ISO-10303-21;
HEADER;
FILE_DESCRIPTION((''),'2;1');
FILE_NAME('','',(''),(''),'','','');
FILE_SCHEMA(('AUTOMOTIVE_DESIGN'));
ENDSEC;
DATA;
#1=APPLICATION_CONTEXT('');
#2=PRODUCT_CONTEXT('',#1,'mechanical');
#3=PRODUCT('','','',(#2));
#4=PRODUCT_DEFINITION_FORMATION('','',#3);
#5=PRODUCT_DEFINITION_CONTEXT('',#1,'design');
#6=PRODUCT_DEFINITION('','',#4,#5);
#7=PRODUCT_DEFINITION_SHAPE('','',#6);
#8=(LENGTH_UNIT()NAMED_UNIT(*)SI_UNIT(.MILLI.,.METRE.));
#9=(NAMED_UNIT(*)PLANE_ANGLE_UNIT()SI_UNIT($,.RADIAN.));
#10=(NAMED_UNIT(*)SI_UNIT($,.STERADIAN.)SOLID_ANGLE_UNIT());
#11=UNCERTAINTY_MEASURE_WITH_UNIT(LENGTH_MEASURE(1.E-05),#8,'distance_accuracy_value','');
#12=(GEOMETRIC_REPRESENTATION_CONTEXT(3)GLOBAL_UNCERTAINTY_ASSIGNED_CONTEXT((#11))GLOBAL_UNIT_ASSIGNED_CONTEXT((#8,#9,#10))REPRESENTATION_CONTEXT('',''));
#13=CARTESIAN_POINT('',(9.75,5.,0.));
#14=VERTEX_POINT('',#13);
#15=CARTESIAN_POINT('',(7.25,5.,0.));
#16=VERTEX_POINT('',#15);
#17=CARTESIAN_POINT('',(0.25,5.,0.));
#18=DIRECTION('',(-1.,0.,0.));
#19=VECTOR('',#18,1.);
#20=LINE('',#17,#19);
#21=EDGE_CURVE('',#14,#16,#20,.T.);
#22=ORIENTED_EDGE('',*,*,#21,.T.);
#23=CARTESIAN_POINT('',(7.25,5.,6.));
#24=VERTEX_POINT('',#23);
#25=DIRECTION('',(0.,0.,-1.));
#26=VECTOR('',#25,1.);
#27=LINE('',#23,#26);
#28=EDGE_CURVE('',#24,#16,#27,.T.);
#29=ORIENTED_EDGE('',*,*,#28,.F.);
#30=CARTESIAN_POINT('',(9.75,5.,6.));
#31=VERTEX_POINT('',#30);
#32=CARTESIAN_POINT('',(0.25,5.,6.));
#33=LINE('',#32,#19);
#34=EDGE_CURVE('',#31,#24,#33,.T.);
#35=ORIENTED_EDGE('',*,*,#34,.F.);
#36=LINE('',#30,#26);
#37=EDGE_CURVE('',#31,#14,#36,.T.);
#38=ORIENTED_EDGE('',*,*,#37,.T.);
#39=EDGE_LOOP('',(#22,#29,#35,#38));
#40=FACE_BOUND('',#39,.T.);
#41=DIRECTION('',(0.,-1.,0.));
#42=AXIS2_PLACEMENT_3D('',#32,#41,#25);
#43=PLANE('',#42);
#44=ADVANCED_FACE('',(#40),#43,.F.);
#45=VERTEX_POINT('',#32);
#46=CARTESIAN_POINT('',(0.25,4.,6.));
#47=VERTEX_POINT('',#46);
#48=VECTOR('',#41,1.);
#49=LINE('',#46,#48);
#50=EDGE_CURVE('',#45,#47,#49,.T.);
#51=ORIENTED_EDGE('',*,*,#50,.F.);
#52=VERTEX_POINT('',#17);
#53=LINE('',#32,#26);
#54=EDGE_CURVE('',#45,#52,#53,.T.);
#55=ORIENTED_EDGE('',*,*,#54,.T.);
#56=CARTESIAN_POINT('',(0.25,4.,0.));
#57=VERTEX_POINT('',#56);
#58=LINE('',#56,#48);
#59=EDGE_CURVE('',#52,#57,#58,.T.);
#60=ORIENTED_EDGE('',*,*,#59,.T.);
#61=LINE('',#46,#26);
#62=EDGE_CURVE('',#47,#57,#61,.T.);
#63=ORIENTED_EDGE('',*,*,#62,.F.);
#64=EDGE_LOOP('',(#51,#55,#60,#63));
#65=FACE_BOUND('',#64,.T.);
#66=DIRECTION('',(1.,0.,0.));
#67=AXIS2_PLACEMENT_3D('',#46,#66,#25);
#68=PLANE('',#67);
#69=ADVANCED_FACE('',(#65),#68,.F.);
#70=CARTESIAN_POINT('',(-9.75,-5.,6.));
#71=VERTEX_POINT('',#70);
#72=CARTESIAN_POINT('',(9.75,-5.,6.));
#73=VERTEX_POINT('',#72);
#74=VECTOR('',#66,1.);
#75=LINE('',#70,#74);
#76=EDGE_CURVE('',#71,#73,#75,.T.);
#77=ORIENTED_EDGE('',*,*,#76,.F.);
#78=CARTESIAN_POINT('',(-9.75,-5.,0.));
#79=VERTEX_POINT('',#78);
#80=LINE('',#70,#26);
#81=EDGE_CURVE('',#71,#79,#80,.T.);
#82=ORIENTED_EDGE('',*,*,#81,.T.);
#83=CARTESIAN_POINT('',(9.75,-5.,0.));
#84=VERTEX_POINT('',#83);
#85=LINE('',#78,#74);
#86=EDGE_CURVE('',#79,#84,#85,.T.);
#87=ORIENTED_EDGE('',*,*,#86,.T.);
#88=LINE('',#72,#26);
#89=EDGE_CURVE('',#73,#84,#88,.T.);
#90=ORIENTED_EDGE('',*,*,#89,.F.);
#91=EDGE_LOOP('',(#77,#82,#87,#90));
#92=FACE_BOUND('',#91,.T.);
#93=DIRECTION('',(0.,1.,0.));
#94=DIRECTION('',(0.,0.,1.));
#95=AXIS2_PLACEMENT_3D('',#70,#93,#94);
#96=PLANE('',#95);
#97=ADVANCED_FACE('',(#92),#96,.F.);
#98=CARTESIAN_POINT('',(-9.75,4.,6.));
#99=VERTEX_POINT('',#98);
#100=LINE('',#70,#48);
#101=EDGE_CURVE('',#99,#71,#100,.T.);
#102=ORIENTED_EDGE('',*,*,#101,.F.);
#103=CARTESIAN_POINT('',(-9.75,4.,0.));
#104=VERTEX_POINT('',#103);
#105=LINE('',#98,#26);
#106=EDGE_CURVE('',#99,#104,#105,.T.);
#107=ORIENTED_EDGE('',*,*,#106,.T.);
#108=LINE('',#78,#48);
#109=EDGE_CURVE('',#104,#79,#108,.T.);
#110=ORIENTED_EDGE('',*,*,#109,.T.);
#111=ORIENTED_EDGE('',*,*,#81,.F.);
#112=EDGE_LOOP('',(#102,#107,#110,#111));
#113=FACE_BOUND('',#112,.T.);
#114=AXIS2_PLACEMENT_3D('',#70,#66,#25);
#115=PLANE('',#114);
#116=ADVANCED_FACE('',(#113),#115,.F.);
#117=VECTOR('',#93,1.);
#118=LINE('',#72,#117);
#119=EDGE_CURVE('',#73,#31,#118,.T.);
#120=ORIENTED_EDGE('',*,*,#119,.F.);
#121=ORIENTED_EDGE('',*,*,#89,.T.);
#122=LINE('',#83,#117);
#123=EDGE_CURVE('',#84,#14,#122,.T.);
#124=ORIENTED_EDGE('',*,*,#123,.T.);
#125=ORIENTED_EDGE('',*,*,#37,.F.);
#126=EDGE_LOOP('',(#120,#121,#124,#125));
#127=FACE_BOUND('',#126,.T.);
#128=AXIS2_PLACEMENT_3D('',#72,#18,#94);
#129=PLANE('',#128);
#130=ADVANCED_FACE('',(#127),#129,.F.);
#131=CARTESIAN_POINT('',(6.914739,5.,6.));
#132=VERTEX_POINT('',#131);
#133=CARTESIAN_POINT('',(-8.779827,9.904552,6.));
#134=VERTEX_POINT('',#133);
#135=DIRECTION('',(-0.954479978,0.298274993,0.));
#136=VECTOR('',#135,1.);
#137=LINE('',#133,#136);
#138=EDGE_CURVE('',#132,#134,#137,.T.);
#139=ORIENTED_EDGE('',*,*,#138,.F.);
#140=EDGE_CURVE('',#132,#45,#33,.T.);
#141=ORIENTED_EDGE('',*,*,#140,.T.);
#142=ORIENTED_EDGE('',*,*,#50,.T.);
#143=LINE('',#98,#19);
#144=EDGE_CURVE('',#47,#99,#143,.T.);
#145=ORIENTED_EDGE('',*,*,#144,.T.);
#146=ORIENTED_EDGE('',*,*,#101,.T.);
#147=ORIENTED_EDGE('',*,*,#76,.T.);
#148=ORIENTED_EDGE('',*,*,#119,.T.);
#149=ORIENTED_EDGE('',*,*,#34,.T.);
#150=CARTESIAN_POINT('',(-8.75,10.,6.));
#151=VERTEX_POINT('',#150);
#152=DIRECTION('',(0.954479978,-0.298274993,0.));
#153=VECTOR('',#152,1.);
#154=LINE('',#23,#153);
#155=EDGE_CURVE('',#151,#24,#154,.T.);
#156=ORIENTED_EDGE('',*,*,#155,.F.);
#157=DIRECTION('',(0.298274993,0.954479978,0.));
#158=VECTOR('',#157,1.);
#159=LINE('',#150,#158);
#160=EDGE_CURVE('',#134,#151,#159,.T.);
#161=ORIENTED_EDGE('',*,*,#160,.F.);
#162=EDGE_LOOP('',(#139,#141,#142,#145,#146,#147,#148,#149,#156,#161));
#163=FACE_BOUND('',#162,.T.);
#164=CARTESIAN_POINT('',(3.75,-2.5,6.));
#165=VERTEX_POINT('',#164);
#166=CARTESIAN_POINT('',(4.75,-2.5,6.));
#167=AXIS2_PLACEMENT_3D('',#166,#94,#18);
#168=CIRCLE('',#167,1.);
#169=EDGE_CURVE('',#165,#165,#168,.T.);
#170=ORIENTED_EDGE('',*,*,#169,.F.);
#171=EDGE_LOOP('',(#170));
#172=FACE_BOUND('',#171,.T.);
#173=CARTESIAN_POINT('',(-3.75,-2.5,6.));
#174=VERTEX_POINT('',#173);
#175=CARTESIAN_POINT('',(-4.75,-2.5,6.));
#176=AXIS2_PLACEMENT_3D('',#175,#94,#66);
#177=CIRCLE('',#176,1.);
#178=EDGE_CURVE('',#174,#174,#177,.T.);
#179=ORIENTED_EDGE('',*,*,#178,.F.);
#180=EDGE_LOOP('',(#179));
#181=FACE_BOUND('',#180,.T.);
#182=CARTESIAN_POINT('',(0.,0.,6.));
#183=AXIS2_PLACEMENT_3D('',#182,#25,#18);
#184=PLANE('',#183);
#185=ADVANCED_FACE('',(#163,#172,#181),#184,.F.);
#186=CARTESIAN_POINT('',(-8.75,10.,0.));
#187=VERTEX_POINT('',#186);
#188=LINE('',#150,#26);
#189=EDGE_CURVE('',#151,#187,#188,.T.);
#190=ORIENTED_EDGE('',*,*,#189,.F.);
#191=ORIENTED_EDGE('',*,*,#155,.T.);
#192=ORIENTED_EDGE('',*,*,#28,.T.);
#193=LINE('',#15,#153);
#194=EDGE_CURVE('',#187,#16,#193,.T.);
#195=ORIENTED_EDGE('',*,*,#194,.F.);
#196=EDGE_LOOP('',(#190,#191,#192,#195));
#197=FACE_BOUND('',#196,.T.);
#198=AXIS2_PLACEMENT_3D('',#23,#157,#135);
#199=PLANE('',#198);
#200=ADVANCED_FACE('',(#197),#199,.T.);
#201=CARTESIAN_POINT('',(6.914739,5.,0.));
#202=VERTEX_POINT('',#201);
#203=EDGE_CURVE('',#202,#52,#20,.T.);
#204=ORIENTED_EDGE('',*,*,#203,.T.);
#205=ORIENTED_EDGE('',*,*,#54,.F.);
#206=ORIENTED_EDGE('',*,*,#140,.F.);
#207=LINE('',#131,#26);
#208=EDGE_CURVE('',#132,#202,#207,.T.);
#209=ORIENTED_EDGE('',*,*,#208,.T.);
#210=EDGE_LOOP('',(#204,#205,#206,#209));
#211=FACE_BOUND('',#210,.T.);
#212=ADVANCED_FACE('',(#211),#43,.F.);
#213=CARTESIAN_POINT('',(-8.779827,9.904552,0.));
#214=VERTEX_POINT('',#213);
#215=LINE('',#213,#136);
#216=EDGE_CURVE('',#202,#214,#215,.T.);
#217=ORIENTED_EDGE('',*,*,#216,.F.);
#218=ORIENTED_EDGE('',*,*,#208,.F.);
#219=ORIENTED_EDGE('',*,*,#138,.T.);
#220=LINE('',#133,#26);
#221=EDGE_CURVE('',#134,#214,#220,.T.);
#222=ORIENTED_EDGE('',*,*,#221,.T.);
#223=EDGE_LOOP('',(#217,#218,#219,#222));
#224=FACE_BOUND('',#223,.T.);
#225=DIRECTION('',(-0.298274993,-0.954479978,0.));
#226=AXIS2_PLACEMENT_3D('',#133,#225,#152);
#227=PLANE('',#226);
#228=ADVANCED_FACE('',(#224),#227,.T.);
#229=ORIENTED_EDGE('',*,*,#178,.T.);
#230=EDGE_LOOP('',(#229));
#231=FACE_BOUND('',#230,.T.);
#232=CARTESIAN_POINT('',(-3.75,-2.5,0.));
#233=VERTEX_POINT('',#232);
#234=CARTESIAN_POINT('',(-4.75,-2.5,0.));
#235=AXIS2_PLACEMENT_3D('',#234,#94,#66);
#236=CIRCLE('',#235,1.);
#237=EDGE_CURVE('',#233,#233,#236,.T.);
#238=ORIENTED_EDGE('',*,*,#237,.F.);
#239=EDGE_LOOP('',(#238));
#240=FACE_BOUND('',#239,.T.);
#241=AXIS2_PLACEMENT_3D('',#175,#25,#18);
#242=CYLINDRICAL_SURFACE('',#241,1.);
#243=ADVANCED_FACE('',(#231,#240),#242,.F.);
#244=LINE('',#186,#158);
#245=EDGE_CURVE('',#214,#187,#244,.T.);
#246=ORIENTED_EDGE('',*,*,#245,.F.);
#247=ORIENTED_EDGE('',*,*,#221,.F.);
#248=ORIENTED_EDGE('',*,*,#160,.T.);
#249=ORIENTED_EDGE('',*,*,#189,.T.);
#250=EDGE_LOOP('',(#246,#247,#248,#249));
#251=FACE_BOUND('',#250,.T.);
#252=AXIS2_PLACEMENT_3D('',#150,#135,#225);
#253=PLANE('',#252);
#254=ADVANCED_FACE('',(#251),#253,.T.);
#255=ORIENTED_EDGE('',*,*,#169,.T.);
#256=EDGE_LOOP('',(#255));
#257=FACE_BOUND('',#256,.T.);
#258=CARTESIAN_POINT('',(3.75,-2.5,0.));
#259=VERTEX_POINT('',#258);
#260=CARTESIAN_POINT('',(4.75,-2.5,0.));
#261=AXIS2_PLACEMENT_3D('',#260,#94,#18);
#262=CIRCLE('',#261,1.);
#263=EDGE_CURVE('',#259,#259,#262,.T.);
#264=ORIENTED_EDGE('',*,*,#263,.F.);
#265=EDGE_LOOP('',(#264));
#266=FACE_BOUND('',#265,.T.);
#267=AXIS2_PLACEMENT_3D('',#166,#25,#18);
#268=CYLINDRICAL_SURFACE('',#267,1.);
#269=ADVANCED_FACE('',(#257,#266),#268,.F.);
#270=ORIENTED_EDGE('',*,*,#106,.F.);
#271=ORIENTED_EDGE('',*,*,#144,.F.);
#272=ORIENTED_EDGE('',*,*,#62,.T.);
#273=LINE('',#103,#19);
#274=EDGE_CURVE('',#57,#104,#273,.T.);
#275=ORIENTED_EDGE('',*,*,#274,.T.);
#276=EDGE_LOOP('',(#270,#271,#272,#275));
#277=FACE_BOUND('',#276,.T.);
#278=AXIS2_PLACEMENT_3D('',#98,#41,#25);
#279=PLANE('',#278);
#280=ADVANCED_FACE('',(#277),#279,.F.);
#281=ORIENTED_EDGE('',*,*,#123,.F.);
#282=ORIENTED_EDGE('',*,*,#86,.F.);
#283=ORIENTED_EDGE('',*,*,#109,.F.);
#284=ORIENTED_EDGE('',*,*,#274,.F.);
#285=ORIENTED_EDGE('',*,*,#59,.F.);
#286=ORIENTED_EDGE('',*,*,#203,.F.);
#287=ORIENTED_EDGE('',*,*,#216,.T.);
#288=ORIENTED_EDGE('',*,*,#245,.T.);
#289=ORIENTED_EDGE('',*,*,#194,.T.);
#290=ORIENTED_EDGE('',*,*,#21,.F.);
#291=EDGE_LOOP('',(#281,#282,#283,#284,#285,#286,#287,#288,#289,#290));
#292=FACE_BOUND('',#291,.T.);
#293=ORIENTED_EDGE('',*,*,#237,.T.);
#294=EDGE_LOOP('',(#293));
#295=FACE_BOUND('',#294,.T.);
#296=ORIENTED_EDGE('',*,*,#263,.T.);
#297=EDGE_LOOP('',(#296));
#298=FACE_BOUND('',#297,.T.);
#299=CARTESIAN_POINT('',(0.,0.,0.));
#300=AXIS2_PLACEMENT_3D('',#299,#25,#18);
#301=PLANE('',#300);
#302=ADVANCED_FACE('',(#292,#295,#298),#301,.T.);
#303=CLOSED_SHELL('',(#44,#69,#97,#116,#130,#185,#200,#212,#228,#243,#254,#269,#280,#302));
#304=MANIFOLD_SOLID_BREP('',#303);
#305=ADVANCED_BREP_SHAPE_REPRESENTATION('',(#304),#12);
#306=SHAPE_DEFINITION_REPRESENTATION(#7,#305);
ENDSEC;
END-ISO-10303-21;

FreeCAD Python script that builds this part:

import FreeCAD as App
import Part
import Sketcher
Q = App.Units.Quantity

doc = App.newDocument("Part")
body = doc.addObject("PartDesign::Body", "Body")

# Sketch on XY plane
sketch1 = body.newObject("Sketcher::SketchObject", "Sketch")
sketch1.AttachmentSupport = (doc.getObject("XY_Plane"), [""])
sketch1.MapMode = "FlatFace"
sketch1.addGeometry(Part.LineSegment(App.Vector(0.25, 4, 0), App.Vector(-9.75, 4, 0)), False)
sketch1.addGeometry(Part.LineSegment(App.Vector(-9.75, 4, 0), App.Vector(-9.75, -5, 0)), False)
sketch1.addGeometry(Part.LineSegment(App.Vector(-9.75, -5, 0), App.Vector(9.75, -5, 0)), False)
sketch1.addGeometry(Part.LineSegment(App.Vector(9.75, -5, 0), App.Vector(9.75, 5, 0)), False)
sketch1.addGeometry(Part.LineSegment(App.Vector(9.75, 5, 0), App.Vector(0.25, 5, 0)), False)
sketch1.addGeometry(Part.LineSegment(App.Vector(0.25, 5, 0), App.Vector(0.25, 4, 0)), False)
sketch1.addGeometry(Part.Circle(App.Vector(4.75, -2.5, 0), App.Vector(0, 0, 1), 1), False)
sketch1.addGeometry(Part.Circle(App.Vector(-4.75, -2.5, 0), App.Vector(0, 0, 1), 1), False)
sketch1.addConstraint(Sketcher.Constraint("Coincident", 0, 2, 1, 1))
sketch1.addConstraint(Sketcher.Constraint("Coincident", 1, 2, 2, 1))
sketch1.addConstraint(Sketcher.Constraint("Coincident", 2, 2, 3, 1))
sketch1.addConstraint(Sketcher.Constraint("Coincident", 3, 2, 4, 1))
sketch1.addConstraint(Sketcher.Constraint("Coincident", 4, 2, 5, 1))
sketch1.addConstraint(Sketcher.Constraint("Coincident", 5, 2, 0, 1))
sketch1.addConstraint(Sketcher.Constraint("Horizontal", 0))
sketch1.addConstraint(Sketcher.Constraint("Vertical", 1))
sketch1.addConstraint(Sketcher.Constraint("Horizontal", 2))
sketch1.addConstraint(Sketcher.Constraint("Vertical", 3))
sketch1.addConstraint(Sketcher.Constraint("Horizontal", 4))
sketch1.addConstraint(Sketcher.Constraint("Vertical", 5))
sketch1.addConstraint(Sketcher.Constraint("Equal", 6, 7))
sketch1.addConstraint(Sketcher.Constraint("Symmetric", 1, 2, 3, 2, -1, 1))
sketch1.addConstraint(Sketcher.Constraint("Symmetric", 6, 3, 7, 3, -2))
sketch1.addConstraint(Sketcher.Constraint("Equal", 0, 3))
sketch1.addConstraint(Sketcher.Constraint("Diameter", 6, Q("2 mm")))
sketch1.addConstraint(Sketcher.Constraint("DistanceX", 0, 2, 0, 1, Q("10 mm")))
sketch1.addConstraint(Sketcher.Constraint("DistanceY", 1, 2, 1, 1, Q("9 mm")))
sketch1.addConstraint(Sketcher.Constraint("DistanceX", 2, 1, 2, 2, Q("19.5 mm")))
sketch1.addConstraint(Sketcher.Constraint("DistanceX", 0, 2, 7, 3, Q("5 mm")))
sketch1.addConstraint(Sketcher.Constraint("DistanceY", 6, 3, -1, 1, Q("2.5 mm")))
pad1 = body.newObject("PartDesign::Pad", "Pad")
pad1.Profile = sketch1
pad1.Length = 6

# Sketch on XY plane
sketch2 = body.newObject("Sketcher::SketchObject", "Sketch001")
sketch2.AttachmentSupport = (doc.getObject("XY_Plane"), [""])
sketch2.MapMode = "FlatFace"
sketch2.addGeometry(Part.LineSegment(App.Vector(-8.75, 10, 0), App.Vector(7.25, 5, 0)), False)
sketch2.addGeometry(Part.LineSegment(App.Vector(7.25, 5, 0), App.Vector(6.914739, 5, 0)), False)
sketch2.addGeometry(Part.LineSegment(App.Vector(6.914739, 5, 0), App.Vector(-8.779827, 9.904552, 0)), False)
sketch2.addGeometry(Part.LineSegment(App.Vector(-8.779827, 9.904552, 0), App.Vector(-8.75, 10, 0)), False)
sketch2.addConstraint(Sketcher.Constraint("Coincident", 0, 2, 1, 1))
sketch2.addConstraint(Sketcher.Constraint("Coincident", 1, 2, 2, 1))
sketch2.addConstraint(Sketcher.Constraint("Coincident", 2, 2, 3, 1))
sketch2.addConstraint(Sketcher.Constraint("Coincident", 3, 2, 0, 1))
sketch2.addConstraint(Sketcher.Constraint("Horizontal", 1))
sketch2.addConstraint(Sketcher.Constraint("Parallel", 0, 2))
sketch2.addConstraint(Sketcher.Constraint("Perpendicular", 2, 3))
sketch2.addConstraint(Sketcher.Constraint("DistanceY", -1, 1, 0, 2, Q("5 mm")))
sketch2.addConstraint(Sketcher.Constraint("DistanceY", -1, 1, 3, 2, Q("10 mm")))
sketch2.addConstraint(Sketcher.Constraint("DistanceX", 3, 2, 0, 2, Q("16 mm")))
sketch2.addConstraint(Sketcher.Constraint("Distance", 3, Q("0.1 mm")))
sketch2.addConstraint(Sketcher.Constraint("DistanceX", -1, 1, 0, 2, Q("7.25 mm")))
pad2 = body.newObject("PartDesign::Pad", "Pad001")
pad2.Profile = sketch2
pad2.Length = 6

doc.recompute()
